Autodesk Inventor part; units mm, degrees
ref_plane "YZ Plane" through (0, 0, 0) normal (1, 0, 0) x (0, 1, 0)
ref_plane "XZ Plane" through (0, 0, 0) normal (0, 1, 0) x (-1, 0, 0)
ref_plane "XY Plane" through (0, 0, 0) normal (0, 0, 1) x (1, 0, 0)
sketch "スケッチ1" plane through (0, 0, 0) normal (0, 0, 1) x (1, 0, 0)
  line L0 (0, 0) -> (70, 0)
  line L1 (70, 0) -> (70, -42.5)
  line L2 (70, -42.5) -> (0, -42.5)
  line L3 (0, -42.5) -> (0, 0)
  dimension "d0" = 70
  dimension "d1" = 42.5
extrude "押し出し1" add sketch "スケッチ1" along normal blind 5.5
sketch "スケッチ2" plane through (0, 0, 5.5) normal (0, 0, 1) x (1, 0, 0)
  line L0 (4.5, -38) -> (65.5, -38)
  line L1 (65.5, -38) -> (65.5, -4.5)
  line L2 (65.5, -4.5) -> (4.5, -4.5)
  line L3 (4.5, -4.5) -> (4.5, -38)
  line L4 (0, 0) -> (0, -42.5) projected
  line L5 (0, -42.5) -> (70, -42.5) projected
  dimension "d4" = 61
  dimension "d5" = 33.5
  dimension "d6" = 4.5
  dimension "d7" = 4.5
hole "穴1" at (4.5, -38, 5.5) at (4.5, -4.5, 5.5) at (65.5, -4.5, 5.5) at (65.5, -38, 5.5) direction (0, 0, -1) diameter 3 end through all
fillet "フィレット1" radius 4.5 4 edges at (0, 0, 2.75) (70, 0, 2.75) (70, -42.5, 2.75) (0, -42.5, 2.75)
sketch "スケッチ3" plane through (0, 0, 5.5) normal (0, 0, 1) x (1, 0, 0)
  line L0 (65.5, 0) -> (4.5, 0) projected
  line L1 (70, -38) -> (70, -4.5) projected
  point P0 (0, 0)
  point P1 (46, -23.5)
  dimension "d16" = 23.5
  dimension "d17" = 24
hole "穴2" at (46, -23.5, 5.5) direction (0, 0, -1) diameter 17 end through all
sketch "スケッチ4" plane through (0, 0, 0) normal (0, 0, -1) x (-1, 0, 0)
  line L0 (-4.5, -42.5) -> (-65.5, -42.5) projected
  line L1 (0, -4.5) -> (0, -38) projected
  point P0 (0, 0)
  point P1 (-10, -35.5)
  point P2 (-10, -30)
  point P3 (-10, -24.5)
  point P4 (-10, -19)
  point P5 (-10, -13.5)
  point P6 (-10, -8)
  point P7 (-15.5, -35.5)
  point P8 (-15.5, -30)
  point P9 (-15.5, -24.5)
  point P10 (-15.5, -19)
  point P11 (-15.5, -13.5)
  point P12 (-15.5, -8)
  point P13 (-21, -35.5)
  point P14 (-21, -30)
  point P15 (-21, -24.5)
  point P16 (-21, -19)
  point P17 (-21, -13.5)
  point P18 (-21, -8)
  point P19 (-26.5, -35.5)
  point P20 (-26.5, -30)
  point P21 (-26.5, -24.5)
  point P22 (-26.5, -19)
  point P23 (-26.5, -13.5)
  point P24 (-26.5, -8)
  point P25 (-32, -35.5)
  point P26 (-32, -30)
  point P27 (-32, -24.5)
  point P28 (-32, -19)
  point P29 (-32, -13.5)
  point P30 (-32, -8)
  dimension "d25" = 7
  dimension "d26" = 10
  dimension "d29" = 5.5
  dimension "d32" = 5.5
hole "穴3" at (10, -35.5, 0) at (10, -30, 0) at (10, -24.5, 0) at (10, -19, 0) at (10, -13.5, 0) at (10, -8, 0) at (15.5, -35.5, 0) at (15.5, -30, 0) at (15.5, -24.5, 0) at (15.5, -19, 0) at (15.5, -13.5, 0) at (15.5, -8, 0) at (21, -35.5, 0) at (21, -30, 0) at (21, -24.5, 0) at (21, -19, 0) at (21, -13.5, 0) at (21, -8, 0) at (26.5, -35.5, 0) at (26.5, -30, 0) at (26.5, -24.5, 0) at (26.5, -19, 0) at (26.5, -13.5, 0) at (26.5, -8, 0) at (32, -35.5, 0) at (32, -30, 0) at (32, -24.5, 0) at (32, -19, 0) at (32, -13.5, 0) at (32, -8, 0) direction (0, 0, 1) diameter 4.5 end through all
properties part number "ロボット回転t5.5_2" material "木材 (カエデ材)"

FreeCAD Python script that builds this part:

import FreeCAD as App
import Part
import Sketcher
from FreeCAD import Vector


def edges_at(feature, points):
    """Names of the edges that pass closest to the given points."""
    edges = feature.Shape.Edges
    near = lambda p: min(range(len(edges)), key=lambda i: edges[i].distToShape(Part.Vertex(*p))[0])
    return sorted({f"Edge{near(p) + 1}" for p in points})


def add_polygon(sketch, points):
    """Adds a closed chain of lines whose ends are joined by coincident constraints."""
    first, n = sketch.GeometryCount, len(points)
    for a, b in zip(points, points[1:] + points[:1]):
        sketch.addGeometry(Part.LineSegment(App.Vector(*a, 0), App.Vector(*b, 0)), False)
    for i in range(n):
        sketch.addConstraint(Sketcher.Constraint("Coincident", first + i, 2, first + (i + 1) % n, 1))

doc = App.newDocument("Part")
body = doc.addObject("PartDesign::Body", "Body")

# Sketch on XY plane
sketch1 = body.newObject("Sketcher::SketchObject", "Sketch")
sketch1.AttachmentSupport = (doc.getObject("XY_Plane"), [""])
sketch1.MapMode = "FlatFace"
add_polygon(sketch1, [(70, 0), (0, 0), (0, -42), (70, -42)])  # lines 0-3
sketch1.addConstraint(Sketcher.Constraint("Horizontal", 0))
sketch1.addConstraint(Sketcher.Constraint("Vertical", 1))
sketch1.addConstraint(Sketcher.Constraint("Horizontal", 2))
sketch1.addConstraint(Sketcher.Constraint("Vertical", 3))
sketch1.addConstraint(Sketcher.Constraint("Coincident", 0, 2, -1, 1))
sketch1.addConstraint(Sketcher.Constraint("DistanceX", 0, 2, 0, 1, 70.0))
sketch1.addConstraint(Sketcher.Constraint("DistanceY", 1, 2, 1, 1, 42.5))
pad1 = body.newObject("PartDesign::Pad", "Pad")
pad1.Profile = sketch1
pad1.Length = 5.5

# Sketch on XY plane
sketch2 = body.newObject("Sketcher::SketchObject", "Sketch001")
sketch2.AttachmentSupport = (doc.getObject("XY_Plane"), [""])
sketch2.MapMode = "FlatFace"
sketch2.AttachmentOffset = App.Placement(Vector(0, 0, 5.5), App.Rotation())
sketch2.addGeometry(Part.Circle(Vector(4.5, -38, 0), Vector(0, 0, 1), 1.5), False)
sketch2.addGeometry(Part.Circle(Vector(4.5, -4.5, 0), Vector(0, 0, 1), 1.5), False)
sketch2.addGeometry(Part.Circle(Vector(65.5, -4.5, 0), Vector(0, 0, 1), 1.5), False)
sketch2.addGeometry(Part.Circle(Vector(65.5, -38, 0), Vector(0, 0, 1), 1.5), False)
sketch2.addConstraint(Sketcher.Constraint("Equal", 0, 1))
sketch2.addConstraint(Sketcher.Constraint("Equal", 1, 2))
sketch2.addConstraint(Sketcher.Constraint("Equal", 2, 3))
sketch2.addConstraint(Sketcher.Constraint("Horizontal", 1, 3, 2, 3))
sketch2.addConstraint(Sketcher.Constraint("Horizontal", 0, 3, 3, 3))
sketch2.addConstraint(Sketcher.Constraint("Vertical", 0, 3, 1, 3))
sketch2.addConstraint(Sketcher.Constraint("Vertical", 2, 3, 3, 3))
sketch2.addConstraint(Sketcher.Constraint("Diameter", 0, 3.0))
sketch2.addConstraint(Sketcher.Constraint("DistanceY", 0, 3, -1, 1, 38.0))
sketch2.addConstraint(Sketcher.Constraint("DistanceX", 1, 3, 2, 3, 61.0))
sketch2.addConstraint(Sketcher.Constraint("DistanceX", -1, 1, 0, 3, 4.5))
sketch2.addConstraint(Sketcher.Constraint("DistanceY", 1, 3, -1, 1, 4.5))
doc.recompute()
hole = body.newObject("PartDesign::Hole", "Hole")
hole.Profile = sketch2
hole.ThreadType = "None"
hole.Diameter = 3
hole.DepthType = "ThroughAll"
doc.recompute()

fillet = body.newObject("PartDesign::Fillet", "Fillet")
fillet.Base = (hole, edges_at(hole, [
    (0, 0, 2.75),
    (70, 0, 2.75),
    (70, -42.5, 2.75),
    (0, -42.5, 2.75),
]))
fillet.Radius = 4.5

# Sketch on XY plane
sketch3 = body.newObject("Sketcher::SketchObject", "Sketch002")
sketch3.AttachmentSupport = (doc.getObject("XY_Plane"), [""])
sketch3.MapMode = "FlatFace"
sketch3.AttachmentOffset = App.Placement(Vector(0, 0, 5.5), App.Rotation())
sketch3.addGeometry(Part.Circle(Vector(46, -24, 0), Vector(0, 0, 1), 8), False)
sketch3.addConstraint(Sketcher.Constraint("Diameter", 0, 17.0))
sketch3.addConstraint(Sketcher.Constraint("DistanceX", -1, 1, 0, 3, 46.0))
sketch3.addConstraint(Sketcher.Constraint("DistanceY", 0, 3, -1, 1, 23.5))
doc.recompute()
hole2 = body.newObject("PartDesign::Hole", "Hole001")
hole2.Profile = sketch3
hole2.ThreadType = "None"
hole2.Diameter = 17
hole2.DepthType = "ThroughAll"

# Sketch on XY plane
sketch4 = body.newObject("Sketcher::SketchObject", "Sketch003")
sketch4.AttachmentSupport = (doc.getObject("XY_Plane"), [""])
sketch4.MapMode = "FlatFace"
sketch4.addGeometry(Part.Circle(Vector(10, -35.5, 0), Vector(0, 0, 1), 2.2), False)
sketch4.addGeometry(Part.Circle(Vector(10, -30, 0), Vector(0, 0, 1), 2.2), False)
sketch4.addGeometry(Part.Circle(Vector(10, -24.5, 0), Vector(0, 0, 1), 2.2), False)
sketch4.addGeometry(Part.Circle(Vector(10, -19, 0), Vector(0, 0, 1), 2.2), False)
sketch4.addGeometry(Part.Circle(Vector(10, -13.5, 0), Vector(0, 0, 1), 2.2), False)
sketch4.addGeometry(Part.Circle(Vector(10, -8, 0), Vector(0, 0, 1), 2.2), False)
sketch4.addGeometry(Part.Circle(Vector(15.5, -35.5, 0), Vector(0, 0, 1), 2.2), False)
sketch4.addGeometry(Part.Circle(Vector(15.5, -30, 0), Vector(0, 0, 1), 2.2), False)
sketch4.addGeometry(Part.Circle(Vector(15.5, -24.5, 0), Vector(0, 0, 1), 2.2), False)
sketch4.addGeometry(Part.Circle(Vector(15.5, -19, 0), Vector(0, 0, 1), 2.2), False)
sketch4.addGeometry(Part.Circle(Vector(15.5, -13.5, 0), Vector(0, 0, 1), 2.2), False)
sketch4.addGeometry(Part.Circle(Vector(15.5, -8, 0), Vector(0, 0, 1), 2.2), False)
sketch4.addGeometry(Part.Circle(Vector(21, -35.5, 0), Vector(0, 0, 1), 2.2), False)
sketch4.addGeometry(Part.Circle(Vector(21, -30, 0), Vector(0, 0, 1), 2.2), False)
sketch4.addGeometry(Part.Circle(Vector(21, -24.5, 0), Vector(0, 0, 1), 2.2), False)
sketch4.addGeometry(Part.Circle(Vector(21, -19, 0), Vector(0, 0, 1), 2.2), False)
sketch4.addGeometry(Part.Circle(Vector(21, -13.5, 0), Vector(0, 0, 1), 2.2), False)
sketch4.addGeometry(Part.Circle(Vector(21, -8, 0), Vector(0, 0, 1), 2.2), False)
sketch4.addGeometry(Part.Circle(Vector(26.5, -35.5, 0), Vector(0, 0, 1), 2.2), False)
sketch4.addGeometry(Part.Circle(Vector(26.5, -30, 0), Vector(0, 0, 1), 2.2), False)
sketch4.addGeometry(Part.Circle(Vector(26.5, -24.5, 0), Vector(0, 0, 1), 2.2), False)
sketch4.addGeometry(Part.Circle(Vector(26.5, -19, 0), Vector(0, 0, 1), 2.2), False)
sketch4.addGeometry(Part.Circle(Vector(26.5, -13.5, 0), Vector(0, 0, 1), 2.2), False)
sketch4.addGeometry(Part.Circle(Vector(26.5, -8, 0), Vector(0, 0, 1), 2.2), False)
sketch4.addGeometry(Part.Circle(Vector(32, -35.5, 0), Vector(0, 0, 1), 2.2), False)
sketch4.addGeometry(Part.Circle(Vector(32, -30, 0), Vector(0, 0, 1), 2.2), False)
sketch4.addGeometry(Part.Circle(Vector(32, -24.5, 0), Vector(0, 0, 1), 2.2), False)
sketch4.addGeometry(Part.Circle(Vector(32, -19, 0), Vector(0, 0, 1), 2.2), False)
sketch4.addGeometry(Part.Circle(Vector(32, -13.5, 0), Vector(0, 0, 1), 2.2), False)
sketch4.addGeometry(Part.Circle(Vector(32, -8, 0), Vector(0, 0, 1), 2.2), False)
sketch4.addConstraint(Sketcher.Constraint("Equal", 0, 1))
sketch4.addConstraint(Sketcher.Constraint("Equal", 1, 2))
sketch4.addConstraint(Sketcher.Constraint("Equal", 2, 3))
sketch4.addConstraint(Sketcher.Constraint("Equal", 3, 4))
sketch4.addConstraint(Sketcher.Constraint("Equal", 4, 5))
sketch4.addConstraint(Sketcher.Constraint("Equal", 5, 6))
sketch4.addConstraint(Sketcher.Constraint("Equal", 6, 7))
sketch4.addConstraint(Sketcher.Constraint("Equal", 7, 8))
sketch4.addConstraint(Sketcher.Constraint("Equal", 8, 9))
sketch4.addConstraint(Sketcher.Constraint("Equal", 9, 10))
sketch4.addConstraint(Sketcher.Constraint("Equal", 10, 11))
sketch4.addConstraint(Sketcher.Constraint("Equal", 11, 12))
sketch4.addConstraint(Sketcher.Constraint("Equal", 12, 13))
sketch4.addConstraint(Sketcher.Constraint("Equal", 13, 14))
sketch4.addConstraint(Sketcher.Constraint("Equal", 14, 15))
sketch4.addConstraint(Sketcher.Constraint("Equal", 15, 16))
sketch4.addConstraint(Sketcher.Constraint("Equal", 16, 17))
sketch4.addConstraint(Sketcher.Constraint("Equal", 17, 18))
sketch4.addConstraint(Sketcher.Constraint("Equal", 18, 19))
sketch4.addConstraint(Sketcher.Constraint("Equal", 19, 20))
sketch4.addConstraint(Sketcher.Constraint("Equal", 20, 21))
sketch4.addConstraint(Sketcher.Constraint("Equal", 21, 22))
sketch4.addConstraint(Sketcher.Constraint("Equal", 22, 23))
sketch4.addConstraint(Sketcher.Constraint("Equal", 23, 24))
sketch4.addConstraint(Sketcher.Constraint("Equal", 24, 25))
sketch4.addConstraint(Sketcher.Constraint("Equal", 25, 26))
sketch4.addConstraint(Sketcher.Constraint("Equal", 26, 27))
sketch4.addConstraint(Sketcher.Constraint("Equal", 27, 28))
sketch4.addConstraint(Sketcher.Constraint("Equal", 28, 29))
sketch4.addConstraint(Sketcher.Constraint("Horizontal", 0, 3, 6, 3))
sketch4.addConstraint(Sketcher.Constraint("Horizontal", 1, 3, 7, 3))
sketch4.addConstraint(Sketcher.Constraint("Horizontal", 2, 3, 8, 3))
sketch4.addConstraint(Sketcher.Constraint("Horizontal", 3, 3, 9, 3))
sketch4.addConstraint(Sketcher.Constraint("Horizontal", 4, 3, 10, 3))
sketch4.addConstraint(Sketcher.Constraint("Horizontal", 5, 3, 11, 3))
sketch4.addConstraint(Sketcher.Constraint("Horizontal", 6, 3, 12, 3))
sketch4.addConstraint(Sketcher.Constraint("Horizontal", 7, 3, 13, 3))
sketch4.addConstraint(Sketcher.Constraint("Horizontal", 8, 3, 14, 3))
sketch4.addConstraint(Sketcher.Constraint("Horizontal", 9, 3, 15, 3))
sketch4.addConstraint(Sketcher.Constraint("Horizontal", 10, 3, 16, 3))
sketch4.addConstraint(Sketcher.Constraint("Horizontal", 11, 3, 17, 3))
sketch4.addConstraint(Sketcher.Constraint("Horizontal", 12, 3, 18, 3))
sketch4.addConstraint(Sketcher.Constraint("Horizontal", 13, 3, 19, 3))
sketch4.addConstraint(Sketcher.Constraint("Horizontal", 14, 3, 20, 3))
sketch4.addConstraint(Sketcher.Constraint("Horizontal", 15, 3, 21, 3))
sketch4.addConstraint(Sketcher.Constraint("Horizontal", 16, 3, 22, 3))
sketch4.addConstraint(Sketcher.Constraint("Horizontal", 17, 3, 23, 3))
sketch4.addConstraint(Sketcher.Constraint("Horizontal", 18, 3, 24, 3))
sketch4.addConstraint(Sketcher.Constraint("Horizontal", 19, 3, 25, 3))
sketch4.addConstraint(Sketcher.Constraint("Horizontal", 20, 3, 26, 3))
sketch4.addConstraint(Sketcher.Constraint("Horizontal", 21, 3, 27, 3))
sketch4.addConstraint(Sketcher.Constraint("Horizontal", 22, 3, 28, 3))
sketch4.addConstraint(Sketcher.Constraint("Horizontal", 23, 3, 29, 3))
sketch4.addConstraint(Sketcher.Constraint("Vertical", 0, 3, 1, 3))
sketch4.addConstraint(Sketcher.Constraint("Vertical", 1, 3, 2, 3))
sketch4.addConstraint(Sketcher.Constraint("Vertical", 2, 3, 3, 3))
sketch4.addConstraint(Sketcher.Constraint("Vertical", 3, 3, 4, 3))
sketch4.addConstraint(Sketcher.Constraint("Vertical", 4, 3, 5, 3))
sketch4.addConstraint(Sketcher.Constraint("Vertical", 6, 3, 7, 3))
sketch4.addConstraint(Sketcher.Constraint("Vertical", 7, 3, 8, 3))
sketch4.addConstraint(Sketcher.Constraint("Vertical", 8, 3, 9, 3))
sketch4.addConstraint(Sketcher.Constraint("Vertical", 9, 3, 10, 3))
sketch4.addConstraint(Sketcher.Constraint("Vertical", 10, 3, 11, 3))
sketch4.addConstraint(Sketcher.Constraint("Vertical", 12, 3, 13, 3))
sketch4.addConstraint(Sketcher.Constraint("Vertical", 13, 3, 14, 3))
sketch4.addConstraint(Sketcher.Constraint("Vertical", 14, 3, 15, 3))
sketch4.addConstraint(Sketcher.Constraint("Vertical", 15, 3, 16, 3))
sketch4.addConstraint(Sketcher.Constraint("Vertical", 16, 3, 17, 3))
sketch4.addConstraint(Sketcher.Constraint("Vertical", 18, 3, 19, 3))
sketch4.addConstraint(Sketcher.Constraint("Vertical", 19, 3, 20, 3))
sketch4.addConstraint(Sketcher.Constraint("Vertical", 20, 3, 21, 3))
sketch4.addConstraint(Sketcher.Constraint("Vertical", 21, 3, 22, 3))
sketch4.addConstraint(Sketcher.Constraint("Vertical", 22, 3, 23, 3))
sketch4.addConstraint(Sketcher.Constraint("Vertical", 24, 3, 25, 3))
sketch4.addConstraint(Sketcher.Constraint("Vertical", 25, 3, 26, 3))
sketch4.addConstraint(Sketcher.Constraint("Vertical", 26, 3, 27, 3))
sketch4.addConstraint(Sketcher.Constraint("Vertical", 27, 3, 28, 3))
sketch4.addConstraint(Sketcher.Constraint("Vertical", 28, 3, 29, 3))
sketch4.addConstraint(Sketcher.Constraint("Diameter", 0, 4.5))
sketch4.addConstraint(Sketcher.Constraint("DistanceX", -1, 1, 0, 3, 10.0))
sketch4.addConstraint(Sketcher.Constraint("DistanceY", 1, 3, -1, 1, 30.0))
sketch4.addConstraint(Sketcher.Constraint("DistanceY", 3, 3, -1, 1, 19.0))
sketch4.addConstraint(Sketcher.Constraint("DistanceY", 5, 3, -1, 1, 8.0))
sketch4.addConstraint(Sketcher.Constraint("DistanceX", -1, 1, 12, 3, 21.0))
sketch4.addConstraint(Sketcher.Constraint("DistanceX", -1, 1, 24, 3, 32.0))
sketch4.addConstraint(Sketcher.Constraint("DistanceY", 0, 3, 2, 3, 11.0))
sketch4.addConstraint(Sketcher.Constraint("DistanceY", 2, 3, 4, 3, 11.0))
sketch4.addConstraint(Sketcher.Constraint("DistanceX", 6, 3, 18, 3, 11.0))
sketch4.addConstraint(Sketcher.Constraint("DistanceY", 0, 3, -1, 1, 35.5))
sketch4.addConstraint(Sketcher.Constraint("DistanceX", -1, 1, 6, 3, 15.5))
doc.recompute()
hole3 = body.newObject("PartDesign::Hole", "Hole002")
hole3.Profile = sketch4
hole3.ThreadType = "None"
hole3.Diameter = 4.5
hole3.DepthType = "ThroughAll"
hole3.Reversed = True

doc.recompute()
